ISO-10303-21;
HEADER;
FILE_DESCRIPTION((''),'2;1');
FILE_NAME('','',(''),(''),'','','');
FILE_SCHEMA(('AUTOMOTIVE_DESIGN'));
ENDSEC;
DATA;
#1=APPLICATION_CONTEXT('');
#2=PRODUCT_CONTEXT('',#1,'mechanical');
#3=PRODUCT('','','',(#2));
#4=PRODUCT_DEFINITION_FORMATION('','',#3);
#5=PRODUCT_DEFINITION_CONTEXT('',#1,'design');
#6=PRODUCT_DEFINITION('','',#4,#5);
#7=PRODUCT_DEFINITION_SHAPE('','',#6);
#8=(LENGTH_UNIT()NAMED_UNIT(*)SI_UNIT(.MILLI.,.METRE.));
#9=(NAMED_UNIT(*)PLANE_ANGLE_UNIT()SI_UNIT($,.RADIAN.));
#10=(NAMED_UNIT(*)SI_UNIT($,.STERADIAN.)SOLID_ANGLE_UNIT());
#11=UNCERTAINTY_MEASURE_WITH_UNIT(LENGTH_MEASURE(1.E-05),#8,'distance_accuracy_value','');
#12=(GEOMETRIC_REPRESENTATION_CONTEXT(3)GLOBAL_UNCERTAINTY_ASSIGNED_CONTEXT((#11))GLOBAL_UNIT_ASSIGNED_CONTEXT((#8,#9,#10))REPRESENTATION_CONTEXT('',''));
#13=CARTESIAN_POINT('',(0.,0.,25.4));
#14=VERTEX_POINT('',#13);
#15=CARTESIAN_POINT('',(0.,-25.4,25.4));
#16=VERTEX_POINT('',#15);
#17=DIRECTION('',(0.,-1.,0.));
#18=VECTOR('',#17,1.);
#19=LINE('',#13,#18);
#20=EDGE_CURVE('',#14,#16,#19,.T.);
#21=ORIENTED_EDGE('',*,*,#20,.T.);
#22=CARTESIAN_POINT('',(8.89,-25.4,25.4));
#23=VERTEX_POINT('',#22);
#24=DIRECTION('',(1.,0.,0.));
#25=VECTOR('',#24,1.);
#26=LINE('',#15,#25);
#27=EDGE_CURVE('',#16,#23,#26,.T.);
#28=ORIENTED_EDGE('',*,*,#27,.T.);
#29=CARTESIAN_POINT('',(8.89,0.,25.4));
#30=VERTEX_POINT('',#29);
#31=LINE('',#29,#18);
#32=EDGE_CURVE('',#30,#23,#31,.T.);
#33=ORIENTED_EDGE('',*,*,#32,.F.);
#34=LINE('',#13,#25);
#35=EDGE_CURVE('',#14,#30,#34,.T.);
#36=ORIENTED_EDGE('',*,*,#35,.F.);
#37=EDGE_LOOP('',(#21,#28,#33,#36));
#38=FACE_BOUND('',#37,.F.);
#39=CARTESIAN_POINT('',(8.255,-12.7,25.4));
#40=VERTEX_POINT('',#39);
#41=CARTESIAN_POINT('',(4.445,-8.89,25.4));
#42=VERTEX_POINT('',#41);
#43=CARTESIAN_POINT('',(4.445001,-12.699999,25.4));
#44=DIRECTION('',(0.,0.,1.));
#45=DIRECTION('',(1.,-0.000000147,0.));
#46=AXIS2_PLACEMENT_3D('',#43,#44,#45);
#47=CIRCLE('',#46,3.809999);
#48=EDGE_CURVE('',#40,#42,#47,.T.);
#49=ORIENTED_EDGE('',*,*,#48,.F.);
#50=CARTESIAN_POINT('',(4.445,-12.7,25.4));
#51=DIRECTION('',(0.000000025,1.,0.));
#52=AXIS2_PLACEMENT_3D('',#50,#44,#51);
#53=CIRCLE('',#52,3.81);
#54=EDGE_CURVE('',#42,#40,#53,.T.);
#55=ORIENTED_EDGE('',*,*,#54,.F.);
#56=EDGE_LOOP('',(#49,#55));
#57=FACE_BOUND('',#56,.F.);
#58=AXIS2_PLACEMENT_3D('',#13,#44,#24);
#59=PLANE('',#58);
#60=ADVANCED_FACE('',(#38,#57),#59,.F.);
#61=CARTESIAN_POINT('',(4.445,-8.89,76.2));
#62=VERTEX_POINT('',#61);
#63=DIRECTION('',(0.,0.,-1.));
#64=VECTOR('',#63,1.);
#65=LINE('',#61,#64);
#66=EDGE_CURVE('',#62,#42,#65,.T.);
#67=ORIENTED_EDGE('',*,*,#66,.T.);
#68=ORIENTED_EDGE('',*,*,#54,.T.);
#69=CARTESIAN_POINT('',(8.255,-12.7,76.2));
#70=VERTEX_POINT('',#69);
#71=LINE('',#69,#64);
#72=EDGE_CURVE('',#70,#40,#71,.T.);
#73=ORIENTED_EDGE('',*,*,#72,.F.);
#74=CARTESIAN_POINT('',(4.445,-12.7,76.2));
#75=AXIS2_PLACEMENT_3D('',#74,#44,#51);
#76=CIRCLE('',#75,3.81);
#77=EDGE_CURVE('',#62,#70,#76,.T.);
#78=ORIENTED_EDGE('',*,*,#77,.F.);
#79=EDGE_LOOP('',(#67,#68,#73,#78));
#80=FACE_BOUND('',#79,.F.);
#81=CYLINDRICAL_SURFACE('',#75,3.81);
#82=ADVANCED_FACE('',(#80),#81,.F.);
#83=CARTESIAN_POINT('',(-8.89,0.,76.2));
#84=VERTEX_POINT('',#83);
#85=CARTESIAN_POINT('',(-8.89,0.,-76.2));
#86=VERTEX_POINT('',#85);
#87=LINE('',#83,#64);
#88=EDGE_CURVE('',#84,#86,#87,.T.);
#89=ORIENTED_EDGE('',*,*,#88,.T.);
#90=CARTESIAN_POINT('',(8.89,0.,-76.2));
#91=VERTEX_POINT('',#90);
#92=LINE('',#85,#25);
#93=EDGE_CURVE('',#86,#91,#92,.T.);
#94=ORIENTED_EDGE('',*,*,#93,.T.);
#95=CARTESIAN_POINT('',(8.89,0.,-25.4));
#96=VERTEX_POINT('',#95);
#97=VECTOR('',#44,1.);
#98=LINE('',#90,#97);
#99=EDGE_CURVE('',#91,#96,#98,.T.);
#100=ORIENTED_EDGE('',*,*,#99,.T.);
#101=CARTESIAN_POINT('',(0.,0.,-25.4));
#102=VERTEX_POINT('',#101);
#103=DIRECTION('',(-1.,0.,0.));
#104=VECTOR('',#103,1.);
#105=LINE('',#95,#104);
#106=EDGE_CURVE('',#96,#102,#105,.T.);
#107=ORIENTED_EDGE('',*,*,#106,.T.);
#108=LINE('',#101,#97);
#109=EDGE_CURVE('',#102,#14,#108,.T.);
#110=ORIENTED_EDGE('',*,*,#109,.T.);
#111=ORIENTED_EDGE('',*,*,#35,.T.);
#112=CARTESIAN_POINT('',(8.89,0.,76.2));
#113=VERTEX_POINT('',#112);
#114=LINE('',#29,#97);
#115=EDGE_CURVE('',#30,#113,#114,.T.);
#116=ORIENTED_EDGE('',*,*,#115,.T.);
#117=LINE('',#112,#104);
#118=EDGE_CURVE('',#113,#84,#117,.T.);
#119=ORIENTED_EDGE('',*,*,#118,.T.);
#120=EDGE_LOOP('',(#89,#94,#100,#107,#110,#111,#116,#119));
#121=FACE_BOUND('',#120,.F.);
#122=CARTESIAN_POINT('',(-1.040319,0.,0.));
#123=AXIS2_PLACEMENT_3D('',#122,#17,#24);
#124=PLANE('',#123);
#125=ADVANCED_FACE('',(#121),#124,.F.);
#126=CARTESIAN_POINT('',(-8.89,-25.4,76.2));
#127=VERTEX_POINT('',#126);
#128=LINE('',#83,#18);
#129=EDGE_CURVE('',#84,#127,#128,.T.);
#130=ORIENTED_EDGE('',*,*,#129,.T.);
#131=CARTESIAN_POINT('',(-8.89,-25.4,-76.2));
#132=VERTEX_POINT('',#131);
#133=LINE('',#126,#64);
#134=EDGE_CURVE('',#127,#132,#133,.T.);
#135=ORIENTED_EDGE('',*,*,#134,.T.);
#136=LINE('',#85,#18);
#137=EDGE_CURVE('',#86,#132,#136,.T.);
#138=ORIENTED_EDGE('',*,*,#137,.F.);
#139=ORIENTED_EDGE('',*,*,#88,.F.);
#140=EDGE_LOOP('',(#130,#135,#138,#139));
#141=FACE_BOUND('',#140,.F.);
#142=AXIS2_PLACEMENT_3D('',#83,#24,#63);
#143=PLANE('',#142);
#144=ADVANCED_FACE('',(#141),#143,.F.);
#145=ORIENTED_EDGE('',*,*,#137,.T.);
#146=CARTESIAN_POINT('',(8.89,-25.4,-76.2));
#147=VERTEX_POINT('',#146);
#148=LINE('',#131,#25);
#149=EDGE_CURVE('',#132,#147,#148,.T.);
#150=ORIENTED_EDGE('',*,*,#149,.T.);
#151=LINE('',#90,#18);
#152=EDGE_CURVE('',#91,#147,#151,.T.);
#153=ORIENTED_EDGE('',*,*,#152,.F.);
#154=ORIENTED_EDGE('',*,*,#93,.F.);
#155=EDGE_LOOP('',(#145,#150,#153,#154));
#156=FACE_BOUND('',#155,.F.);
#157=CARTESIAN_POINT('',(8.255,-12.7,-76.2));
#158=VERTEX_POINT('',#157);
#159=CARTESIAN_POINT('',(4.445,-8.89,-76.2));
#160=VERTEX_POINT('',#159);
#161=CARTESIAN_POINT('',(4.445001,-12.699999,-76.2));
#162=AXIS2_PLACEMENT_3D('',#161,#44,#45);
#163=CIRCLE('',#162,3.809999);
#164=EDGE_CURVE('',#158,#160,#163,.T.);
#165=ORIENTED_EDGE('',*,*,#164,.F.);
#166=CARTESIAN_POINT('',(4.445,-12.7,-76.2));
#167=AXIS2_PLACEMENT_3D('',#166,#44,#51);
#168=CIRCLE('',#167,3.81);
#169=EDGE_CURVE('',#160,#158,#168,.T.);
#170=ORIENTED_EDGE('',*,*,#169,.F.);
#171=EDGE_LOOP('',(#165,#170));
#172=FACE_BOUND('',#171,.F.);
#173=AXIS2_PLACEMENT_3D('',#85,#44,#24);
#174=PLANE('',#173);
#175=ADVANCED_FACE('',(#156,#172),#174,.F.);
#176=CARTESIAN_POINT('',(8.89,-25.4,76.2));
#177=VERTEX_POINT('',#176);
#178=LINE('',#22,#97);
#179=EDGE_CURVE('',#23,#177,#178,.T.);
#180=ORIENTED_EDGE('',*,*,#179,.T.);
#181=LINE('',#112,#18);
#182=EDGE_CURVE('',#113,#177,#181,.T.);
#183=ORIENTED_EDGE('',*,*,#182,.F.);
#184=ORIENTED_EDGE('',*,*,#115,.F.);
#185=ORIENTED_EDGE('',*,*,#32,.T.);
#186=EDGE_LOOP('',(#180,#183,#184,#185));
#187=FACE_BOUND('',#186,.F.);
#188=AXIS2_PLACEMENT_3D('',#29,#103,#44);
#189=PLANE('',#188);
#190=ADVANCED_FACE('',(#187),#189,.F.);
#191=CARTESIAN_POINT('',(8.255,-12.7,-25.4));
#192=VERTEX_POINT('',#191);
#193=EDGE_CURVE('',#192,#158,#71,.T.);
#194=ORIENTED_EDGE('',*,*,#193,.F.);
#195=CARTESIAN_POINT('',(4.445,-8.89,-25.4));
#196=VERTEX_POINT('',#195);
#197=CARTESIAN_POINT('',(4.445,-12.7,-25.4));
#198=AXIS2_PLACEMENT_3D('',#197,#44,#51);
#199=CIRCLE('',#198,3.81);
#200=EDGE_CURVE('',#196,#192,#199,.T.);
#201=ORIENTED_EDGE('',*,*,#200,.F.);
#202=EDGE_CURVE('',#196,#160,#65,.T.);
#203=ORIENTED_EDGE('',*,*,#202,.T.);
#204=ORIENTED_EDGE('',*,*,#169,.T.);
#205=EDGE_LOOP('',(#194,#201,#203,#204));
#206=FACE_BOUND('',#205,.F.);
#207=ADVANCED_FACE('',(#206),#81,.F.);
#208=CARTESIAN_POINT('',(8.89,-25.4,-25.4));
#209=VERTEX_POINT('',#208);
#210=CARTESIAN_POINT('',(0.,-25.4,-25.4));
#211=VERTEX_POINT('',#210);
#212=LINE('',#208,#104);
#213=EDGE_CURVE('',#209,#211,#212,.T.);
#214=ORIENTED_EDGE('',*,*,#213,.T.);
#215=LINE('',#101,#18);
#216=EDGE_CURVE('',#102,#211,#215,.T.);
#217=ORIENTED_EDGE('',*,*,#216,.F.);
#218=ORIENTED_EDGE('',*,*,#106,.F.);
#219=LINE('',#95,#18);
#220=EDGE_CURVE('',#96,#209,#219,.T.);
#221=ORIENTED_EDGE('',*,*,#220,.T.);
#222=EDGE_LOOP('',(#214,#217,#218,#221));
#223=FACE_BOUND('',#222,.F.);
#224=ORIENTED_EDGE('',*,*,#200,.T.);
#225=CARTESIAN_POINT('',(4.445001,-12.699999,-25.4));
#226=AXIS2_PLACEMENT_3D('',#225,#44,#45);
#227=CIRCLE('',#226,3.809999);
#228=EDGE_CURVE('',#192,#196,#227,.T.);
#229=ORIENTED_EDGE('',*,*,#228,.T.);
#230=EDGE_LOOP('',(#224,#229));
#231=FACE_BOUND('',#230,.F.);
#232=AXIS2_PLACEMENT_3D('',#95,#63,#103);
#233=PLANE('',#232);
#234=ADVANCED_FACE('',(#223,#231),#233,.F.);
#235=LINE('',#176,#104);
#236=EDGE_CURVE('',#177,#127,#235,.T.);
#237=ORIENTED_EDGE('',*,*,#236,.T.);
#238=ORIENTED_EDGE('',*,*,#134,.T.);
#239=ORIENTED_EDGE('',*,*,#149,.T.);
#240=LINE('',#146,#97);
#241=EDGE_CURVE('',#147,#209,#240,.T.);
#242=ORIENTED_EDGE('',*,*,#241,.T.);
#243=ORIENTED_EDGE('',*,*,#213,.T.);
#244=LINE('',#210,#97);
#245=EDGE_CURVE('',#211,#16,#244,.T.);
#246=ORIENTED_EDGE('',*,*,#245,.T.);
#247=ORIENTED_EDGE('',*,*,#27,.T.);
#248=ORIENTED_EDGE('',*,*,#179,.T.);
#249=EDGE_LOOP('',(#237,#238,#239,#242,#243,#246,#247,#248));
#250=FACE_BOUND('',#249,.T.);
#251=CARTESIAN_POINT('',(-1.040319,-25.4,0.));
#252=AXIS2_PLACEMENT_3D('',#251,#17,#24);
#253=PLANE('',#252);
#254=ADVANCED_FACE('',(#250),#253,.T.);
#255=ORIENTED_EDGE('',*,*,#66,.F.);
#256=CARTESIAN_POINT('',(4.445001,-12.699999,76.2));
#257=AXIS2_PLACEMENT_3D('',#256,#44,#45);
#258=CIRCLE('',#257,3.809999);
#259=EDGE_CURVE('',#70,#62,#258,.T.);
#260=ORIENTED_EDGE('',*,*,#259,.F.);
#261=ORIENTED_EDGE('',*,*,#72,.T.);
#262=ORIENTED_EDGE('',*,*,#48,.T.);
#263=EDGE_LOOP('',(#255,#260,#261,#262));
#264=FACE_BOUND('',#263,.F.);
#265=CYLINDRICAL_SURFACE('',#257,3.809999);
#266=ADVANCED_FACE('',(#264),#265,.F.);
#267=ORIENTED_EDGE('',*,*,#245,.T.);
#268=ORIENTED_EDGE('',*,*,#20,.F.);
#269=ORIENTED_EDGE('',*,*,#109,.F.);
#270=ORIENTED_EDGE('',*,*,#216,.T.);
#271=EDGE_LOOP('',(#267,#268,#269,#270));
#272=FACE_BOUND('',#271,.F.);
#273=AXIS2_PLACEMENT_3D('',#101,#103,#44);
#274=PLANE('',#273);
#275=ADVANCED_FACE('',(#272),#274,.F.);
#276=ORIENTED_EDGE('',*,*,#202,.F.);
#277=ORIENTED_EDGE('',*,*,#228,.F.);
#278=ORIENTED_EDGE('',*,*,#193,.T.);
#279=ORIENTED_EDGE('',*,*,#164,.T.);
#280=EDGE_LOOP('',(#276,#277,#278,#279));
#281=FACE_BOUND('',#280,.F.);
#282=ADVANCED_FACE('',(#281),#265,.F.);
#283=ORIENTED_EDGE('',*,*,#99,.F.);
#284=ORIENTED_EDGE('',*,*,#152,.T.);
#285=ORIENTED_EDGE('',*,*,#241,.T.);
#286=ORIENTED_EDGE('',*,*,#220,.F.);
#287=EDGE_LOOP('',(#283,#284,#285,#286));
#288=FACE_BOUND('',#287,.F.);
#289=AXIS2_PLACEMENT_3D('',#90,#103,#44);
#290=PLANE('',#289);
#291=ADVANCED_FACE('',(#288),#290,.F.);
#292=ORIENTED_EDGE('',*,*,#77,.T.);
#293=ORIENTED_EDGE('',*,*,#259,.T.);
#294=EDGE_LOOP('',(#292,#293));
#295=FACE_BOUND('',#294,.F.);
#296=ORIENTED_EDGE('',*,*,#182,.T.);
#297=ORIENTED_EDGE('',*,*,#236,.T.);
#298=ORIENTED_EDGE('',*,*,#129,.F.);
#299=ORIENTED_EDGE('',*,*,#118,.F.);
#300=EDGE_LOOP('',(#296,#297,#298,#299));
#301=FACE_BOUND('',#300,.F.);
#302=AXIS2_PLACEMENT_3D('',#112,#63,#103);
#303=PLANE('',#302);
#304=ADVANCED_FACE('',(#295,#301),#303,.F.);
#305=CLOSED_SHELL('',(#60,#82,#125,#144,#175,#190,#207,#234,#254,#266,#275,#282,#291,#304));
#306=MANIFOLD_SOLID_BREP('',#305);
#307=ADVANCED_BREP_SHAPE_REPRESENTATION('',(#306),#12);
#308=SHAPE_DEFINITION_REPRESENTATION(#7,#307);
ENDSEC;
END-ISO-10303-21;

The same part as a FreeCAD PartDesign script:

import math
import FreeCAD as App
import Part
import Sketcher
Q = App.Units.Quantity

doc = App.newDocument("Part")
body = doc.addObject("PartDesign::Body", "Body")

# Sketch on XZ plane
sketch1 = body.newObject("Sketcher::SketchObject", "Sketch")
sketch1.AttachmentSupport = (doc.getObject("XZ_Plane"), [""])
sketch1.MapMode = "FlatFace"
sketch1.addGeometry([
    Part.LineSegment(App.Vector(-8.89, -76.2, 0), App.Vector(8.89, -76.2, 0)),  # 0
    Part.LineSegment(App.Vector(8.89, -76.2, 0), App.Vector(8.89, -25.4, 0)),  # 1
    Part.LineSegment(App.Vector(8.89, -25.4, 0), App.Vector(0, -25.4, 0)),  # 2
    Part.LineSegment(App.Vector(0, -25.4, 0), App.Vector(0, 25.4, 0)),  # 3
    Part.LineSegment(App.Vector(0, 25.4, 0), App.Vector(8.89, 25.4, 0)),  # 4
    Part.LineSegment(App.Vector(8.89, 25.4, 0), App.Vector(8.89, 76.2, 0)),  # 5
    Part.LineSegment(App.Vector(8.89, 76.2, 0), App.Vector(-8.89, 76.2, 0)),  # 6
    Part.LineSegment(App.Vector(-8.89, 76.2, 0), App.Vector(-8.89, -76.2, 0)),  # 7
], False)
sketch1.addConstraint([
    Sketcher.Constraint("Coincident", 0, 2, 1, 1),
    Sketcher.Constraint("Coincident", 1, 2, 2, 1),
    Sketcher.Constraint("Coincident", 2, 2, 3, 1),
    Sketcher.Constraint("Coincident", 3, 2, 4, 1),
    Sketcher.Constraint("Coincident", 4, 2, 5, 1),
    Sketcher.Constraint("Coincident", 5, 2, 6, 1),
    Sketcher.Constraint("Coincident", 6, 2, 7, 1),
    Sketcher.Constraint("Coincident", 7, 2, 0, 1),
    Sketcher.Constraint("Horizontal", 0),
    Sketcher.Constraint("Vertical", 1),
    Sketcher.Constraint("Horizontal", 2),
    Sketcher.Constraint("Vertical", 3),
    Sketcher.Constraint("Horizontal", 4),
    Sketcher.Constraint("Vertical", 5),
    Sketcher.Constraint("Horizontal", 6),
    Sketcher.Constraint("Vertical", 7),
    Sketcher.Constraint("Symmetric", 2, 2, 3, 2, -1, 1),
    Sketcher.Constraint("Symmetric", 0, 2, 6, 2, -1, 1),
    Sketcher.Constraint("Vertical", 1, 2, 4, 2),
    Sketcher.Constraint("Equal", 1, 3),
    Sketcher.Constraint("DistanceY", 1, 1, 1, 2, Q("2 in")),
    Sketcher.Constraint("DistanceX", 0, 1, 0, 2, Q("0.7 in")),
])
pad1 = body.newObject("PartDesign::Pad", "Pad")
pad1.Profile = sketch1
pad1.Length = Q("1 in")

# Sketch on XY plane
sketch2 = body.newObject("Sketcher::SketchObject", "Sketch001")
sketch2.AttachmentSupport = (doc.getObject("XY_Plane"), [""])
sketch2.MapMode = "FlatFace"
sketch2.AttachmentOffset = App.Placement(App.Vector(0, 0, 3 * 25.4), App.Rotation())
sketch2.addGeometry([
    Part.ArcOfCircle(Part.Circle(App.Vector(4.445, -12.7, 0), App.Vector(0, 0, 1), 3.81), math.radians(89.999999), math.radians(360.000001)),
    Part.ArcOfCircle(Part.Circle(App.Vector(4.445001, -12.699999, 0), App.Vector(0, 0, 1), 3.809999), math.radians(-0.000008), math.radians(90.000008)),
], False)
sketch2.addConstraint([
    Sketcher.Constraint("Tangent", 0, 1, 1, 2),
    Sketcher.Constraint("Coincident", 1, 1, 0, 2),
    Sketcher.Constraint("Horizontal", 0, 3, 1, 1),
    Sketcher.Constraint("Vertical", 1, 3, 0, 1),
    Sketcher.Constraint("Radius", 0, Q("0.15 in")),
    Sketcher.Constraint("DistanceY", 0, 3, -1, 1, Q("0.5 in")),
    Sketcher.Constraint("DistanceX", -1, 1, 0, 3, Q("0.175 in")),
])
pocket1 = body.newObject("PartDesign::Pocket", "Pocket")
pocket1.Profile = sketch2
pocket1.Type = "ThroughAll"

doc.recompute()
